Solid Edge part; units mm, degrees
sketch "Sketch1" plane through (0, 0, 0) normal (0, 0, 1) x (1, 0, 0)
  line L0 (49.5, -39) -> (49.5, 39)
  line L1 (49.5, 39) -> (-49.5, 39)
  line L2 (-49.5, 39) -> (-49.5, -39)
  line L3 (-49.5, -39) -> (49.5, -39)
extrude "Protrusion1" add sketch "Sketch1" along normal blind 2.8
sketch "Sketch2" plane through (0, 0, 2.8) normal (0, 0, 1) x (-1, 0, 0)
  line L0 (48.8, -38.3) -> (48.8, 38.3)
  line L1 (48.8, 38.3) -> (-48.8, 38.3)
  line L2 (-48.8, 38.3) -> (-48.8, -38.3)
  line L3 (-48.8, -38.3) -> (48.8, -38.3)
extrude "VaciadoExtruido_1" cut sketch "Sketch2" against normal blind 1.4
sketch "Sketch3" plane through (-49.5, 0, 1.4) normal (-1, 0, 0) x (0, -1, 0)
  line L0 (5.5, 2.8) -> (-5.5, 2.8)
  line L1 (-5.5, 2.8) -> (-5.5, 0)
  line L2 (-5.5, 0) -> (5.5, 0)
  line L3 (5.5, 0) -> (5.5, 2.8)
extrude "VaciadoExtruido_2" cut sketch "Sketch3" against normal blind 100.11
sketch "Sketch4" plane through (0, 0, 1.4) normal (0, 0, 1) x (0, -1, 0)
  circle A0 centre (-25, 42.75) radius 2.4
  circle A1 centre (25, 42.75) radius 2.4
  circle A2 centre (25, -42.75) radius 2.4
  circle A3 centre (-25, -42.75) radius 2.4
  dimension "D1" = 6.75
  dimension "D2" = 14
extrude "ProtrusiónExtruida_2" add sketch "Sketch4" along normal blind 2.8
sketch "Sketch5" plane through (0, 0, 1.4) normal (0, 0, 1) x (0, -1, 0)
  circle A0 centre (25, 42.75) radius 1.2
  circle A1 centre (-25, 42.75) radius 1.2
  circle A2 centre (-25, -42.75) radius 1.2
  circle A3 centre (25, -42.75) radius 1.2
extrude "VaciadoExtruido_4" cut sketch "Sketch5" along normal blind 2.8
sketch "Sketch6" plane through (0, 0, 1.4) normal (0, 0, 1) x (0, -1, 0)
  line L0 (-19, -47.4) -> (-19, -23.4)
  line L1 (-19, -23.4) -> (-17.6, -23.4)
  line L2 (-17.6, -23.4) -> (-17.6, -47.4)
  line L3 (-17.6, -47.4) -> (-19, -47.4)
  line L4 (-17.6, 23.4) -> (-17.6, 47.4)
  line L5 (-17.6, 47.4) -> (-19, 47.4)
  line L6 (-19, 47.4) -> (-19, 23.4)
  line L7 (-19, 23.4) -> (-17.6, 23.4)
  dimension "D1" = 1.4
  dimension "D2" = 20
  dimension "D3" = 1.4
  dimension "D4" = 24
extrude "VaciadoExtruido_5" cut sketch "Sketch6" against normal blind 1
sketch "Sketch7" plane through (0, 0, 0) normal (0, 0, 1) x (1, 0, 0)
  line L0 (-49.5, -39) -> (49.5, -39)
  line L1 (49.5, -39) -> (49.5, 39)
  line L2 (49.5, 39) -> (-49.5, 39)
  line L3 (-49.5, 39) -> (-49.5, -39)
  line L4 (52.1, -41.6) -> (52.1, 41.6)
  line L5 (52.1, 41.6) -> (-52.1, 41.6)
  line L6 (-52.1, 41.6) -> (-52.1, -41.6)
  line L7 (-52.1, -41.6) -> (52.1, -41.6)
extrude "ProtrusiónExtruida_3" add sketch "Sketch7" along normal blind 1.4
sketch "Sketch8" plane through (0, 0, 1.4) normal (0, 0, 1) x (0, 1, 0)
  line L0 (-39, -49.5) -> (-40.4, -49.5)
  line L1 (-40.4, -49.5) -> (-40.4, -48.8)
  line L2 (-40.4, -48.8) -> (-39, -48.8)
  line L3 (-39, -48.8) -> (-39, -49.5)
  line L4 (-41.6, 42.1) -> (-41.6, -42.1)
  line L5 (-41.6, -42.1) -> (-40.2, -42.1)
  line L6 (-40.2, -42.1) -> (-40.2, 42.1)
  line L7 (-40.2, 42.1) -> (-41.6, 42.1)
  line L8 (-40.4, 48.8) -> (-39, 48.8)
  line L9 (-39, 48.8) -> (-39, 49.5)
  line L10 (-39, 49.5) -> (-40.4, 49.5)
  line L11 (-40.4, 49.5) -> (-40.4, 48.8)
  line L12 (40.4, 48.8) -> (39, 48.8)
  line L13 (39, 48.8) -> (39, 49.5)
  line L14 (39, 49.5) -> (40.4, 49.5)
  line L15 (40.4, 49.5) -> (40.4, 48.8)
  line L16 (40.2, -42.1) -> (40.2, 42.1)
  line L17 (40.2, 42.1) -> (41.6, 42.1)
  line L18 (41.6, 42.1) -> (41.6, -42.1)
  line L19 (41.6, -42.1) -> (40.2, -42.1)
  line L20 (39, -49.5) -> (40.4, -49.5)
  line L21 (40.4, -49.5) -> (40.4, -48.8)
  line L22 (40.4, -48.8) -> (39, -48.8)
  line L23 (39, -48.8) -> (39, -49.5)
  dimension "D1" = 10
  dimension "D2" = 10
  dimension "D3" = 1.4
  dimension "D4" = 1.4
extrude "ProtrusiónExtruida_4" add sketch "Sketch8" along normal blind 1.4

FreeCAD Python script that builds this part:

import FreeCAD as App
import Part
import Sketcher
from FreeCAD import Vector


def add_polygon(sketch, points):
    """Adds a closed chain of lines whose ends are joined by coincident constraints."""
    first, n = sketch.GeometryCount, len(points)
    for a, b in zip(points, points[1:] + points[:1]):
        sketch.addGeometry(Part.LineSegment(App.Vector(*a, 0), App.Vector(*b, 0)), False)
    for i in range(n):
        sketch.addConstraint(Sketcher.Constraint("Coincident", first + i, 2, first + (i + 1) % n, 1))

doc = App.newDocument("Part")
body = doc.addObject("PartDesign::Body", "Body")

# Sketch on XY plane
sketch1 = body.newObject("Sketcher::SketchObject", "Sketch")
sketch1.AttachmentSupport = (doc.getObject("XY_Plane"), [""])
sketch1.MapMode = "FlatFace"
add_polygon(sketch1, [(-49.5, -39), (49.5, -39), (49.5, 39), (-49.5, 39)])  # lines 0-3
sketch1.addConstraint(Sketcher.Constraint("Horizontal", 0))
sketch1.addConstraint(Sketcher.Constraint("Vertical", 1))
sketch1.addConstraint(Sketcher.Constraint("Horizontal", 2))
sketch1.addConstraint(Sketcher.Constraint("Vertical", 3))
sketch1.addConstraint(Sketcher.Constraint("Symmetric", 0, 2, 2, 2, -1, 1))
sketch1.addConstraint(Sketcher.Constraint("DistanceX", 0, 1, 0, 2, 99.0))
sketch1.addConstraint(Sketcher.Constraint("DistanceY", 1, 1, 1, 2, 78.0))
pad1 = body.newObject("PartDesign::Pad", "Pad")
pad1.Profile = sketch1
pad1.Length = 2.8

# Sketch on XY plane
sketch2 = body.newObject("Sketcher::SketchObject", "Sketch001")
sketch2.AttachmentSupport = (doc.getObject("XY_Plane"), [""])
sketch2.MapMode = "FlatFace"
sketch2.AttachmentOffset = App.Placement(Vector(0, 0, 2.8), App.Rotation())
add_polygon(sketch2, [(48.8, 38.3), (-48.8, 38.3), (-48.8, -38.3), (48.8, -38.3)])  # lines 0-3
sketch2.addConstraint(Sketcher.Constraint("Horizontal", 0))
sketch2.addConstraint(Sketcher.Constraint("Vertical", 1))
sketch2.addConstraint(Sketcher.Constraint("Horizontal", 2))
sketch2.addConstraint(Sketcher.Constraint("Vertical", 3))
sketch2.addConstraint(Sketcher.Constraint("Symmetric", 0, 2, 2, 2, -1, 1))
sketch2.addConstraint(Sketcher.Constraint("DistanceX", 0, 2, 0, 1, 97.6))
sketch2.addConstraint(Sketcher.Constraint("DistanceY", 1, 2, 1, 1, 76.6))
pocket1 = body.newObject("PartDesign::Pocket", "Pocket")
pocket1.Profile = sketch2
pocket1.Length = 1.4

# Sketch on YZ plane
sketch3 = body.newObject("Sketcher::SketchObject", "Sketch002")
sketch3.AttachmentSupport = (doc.getObject("YZ_Plane"), [""])
sketch3.MapMode = "FlatFace"
sketch3.AttachmentOffset = App.Placement(Vector(0, 0, -49.5), App.Rotation())
add_polygon(sketch3, [(-5.5, 1.4), (-5.5, 4.2), (5.5, 4.2), (5.5, 1.4)])  # lines 0-3
sketch3.addConstraint(Sketcher.Constraint("Vertical", 0))
sketch3.addConstraint(Sketcher.Constraint("Horizontal", 1))
sketch3.addConstraint(Sketcher.Constraint("Vertical", 2))
sketch3.addConstraint(Sketcher.Constraint("Horizontal", 3))
sketch3.addConstraint(Sketcher.Constraint("DistanceX", 1, 1, 1, 2, 11.0))
sketch3.addConstraint(Sketcher.Constraint("DistanceY", 0, 1, 0, 2, 2.8))
sketch3.addConstraint(Sketcher.Constraint("DistanceX", 0, 2, -1, 1, 5.5))
sketch3.addConstraint(Sketcher.Constraint("DistanceY", -1, 1, 0, 2, 4.2))
pocket2 = body.newObject("PartDesign::Pocket", "Pocket001")
pocket2.Profile = sketch3
pocket2.Length = 100.11
pocket2.Reversed = True

# Sketch on XY plane
sketch4 = body.newObject("Sketcher::SketchObject", "Sketch003")
sketch4.AttachmentSupport = (doc.getObject("XY_Plane"), [""])
sketch4.MapMode = "FlatFace"
sketch4.AttachmentOffset = App.Placement(Vector(0, 0, 1.4), App.Rotation())
sketch4.addGeometry(Part.Circle(Vector(42.75, 25, 0), Vector(0, 0, 1), 2.4), False)
sketch4.addGeometry(Part.Circle(Vector(42.75, -25, 0), Vector(0, 0, 1), 2.4), False)
sketch4.addGeometry(Part.Circle(Vector(-42.75, -25, 0), Vector(0, 0, 1), 2.4), False)
sketch4.addGeometry(Part.Circle(Vector(-42.75, 25, 0), Vector(0, 0, 1), 2.4), False)
sketch4.addConstraint(Sketcher.Constraint("Equal", 0, 1))
sketch4.addConstraint(Sketcher.Constraint("Equal", 1, 2))
sketch4.addConstraint(Sketcher.Constraint("Equal", 2, 3))
sketch4.addConstraint(Sketcher.Constraint("Symmetric", 0, 3, 2, 3, -1, 1))
sketch4.addConstraint(Sketcher.Constraint("Symmetric", 1, 3, 3, 3, -1, 1))
sketch4.addConstraint(Sketcher.Constraint("Symmetric", 1, 3, 2, 3, -2))
sketch4.addConstraint(Sketcher.Constraint("Diameter", 0, 4.8))
sketch4.addConstraint(Sketcher.Constraint("DistanceY", -1, 1, 0, 3, 25.0))
sketch4.addConstraint(Sketcher.Constraint("DistanceX", 2, 3, 1, 3, 85.5))
pad2 = body.newObject("PartDesign::Pad", "Pad001")
pad2.Profile = sketch4
pad2.Length = 2.8

# Sketch on XY plane
sketch5 = body.newObject("Sketcher::SketchObject", "Sketch004")
sketch5.AttachmentSupport = (doc.getObject("XY_Plane"), [""])
sketch5.MapMode = "FlatFace"
sketch5.AttachmentOffset = App.Placement(Vector(0, 0, 1.4), App.Rotation())
sketch5.addGeometry(Part.Circle(Vector(42.75, -25, 0), Vector(0, 0, 1), 1.2), False)
sketch5.addGeometry(Part.Circle(Vector(42.75, 25, 0), Vector(0, 0, 1), 1.2), False)
sketch5.addGeometry(Part.Circle(Vector(-42.75, 25, 0), Vector(0, 0, 1), 1.2), False)
sketch5.addGeometry(Part.Circle(Vector(-42.75, -25, 0), Vector(0, 0, 1), 1.2), False)
sketch5.addConstraint(Sketcher.Constraint("Equal", 0, 1))
sketch5.addConstraint(Sketcher.Constraint("Equal", 1, 2))
sketch5.addConstraint(Sketcher.Constraint("Equal", 2, 3))
sketch5.addConstraint(Sketcher.Constraint("Symmetric", 0, 3, 2, 3, -1, 1))
sketch5.addConstraint(Sketcher.Constraint("Symmetric", 1, 3, 3, 3, -1, 1))
sketch5.addConstraint(Sketcher.Constraint("Symmetric", 1, 3, 2, 3, -2))
sketch5.addConstraint(Sketcher.Constraint("Diameter", 0, 2.4))
sketch5.addConstraint(Sketcher.Constraint("DistanceY", 0, 3, -1, 1, 25.0))
sketch5.addConstraint(Sketcher.Constraint("DistanceX", 2, 3, 1, 3, 85.5))
pocket3 = body.newObject("PartDesign::Pocket", "Pocket002")
pocket3.Profile = sketch5
pocket3.Length = 2.8
pocket3.Reversed = True

# Sketch on XY plane
sketch6 = body.newObject("Sketcher::SketchObject", "Sketch005")
sketch6.AttachmentSupport = (doc.getObject("XY_Plane"), [""])
sketch6.MapMode = "FlatFace"
sketch6.AttachmentOffset = App.Placement(Vector(0, 0, 1.4), App.Rotation())
add_polygon(sketch6, [(-23.4, 19), (-47.4, 19), (-47.4, 17.6), (-23.4, 17.6)])  # lines 0-3
add_polygon(sketch6, [(23.4, 19), (23.4, 17.6), (47.4, 17.6), (47.4, 19)])  # lines 4-7
sketch6.addConstraint(Sketcher.Constraint("Horizontal", 0))
sketch6.addConstraint(Sketcher.Constraint("Vertical", 1))
sketch6.addConstraint(Sketcher.Constraint("Horizontal", 2))
sketch6.addConstraint(Sketcher.Constraint("Vertical", 3))
sketch6.addConstraint(Sketcher.Constraint("Vertical", 4))
sketch6.addConstraint(Sketcher.Constraint("Horizontal", 5))
sketch6.addConstraint(Sketcher.Constraint("Vertical", 6))
sketch6.addConstraint(Sketcher.Constraint("Horizontal", 7))
sketch6.addConstraint(Sketcher.Constraint("Symmetric", 2, 2, 4, 2, -2))
sketch6.addConstraint(Sketcher.Constraint("Symmetric", 0, 2, 6, 2, -2))
sketch6.addConstraint(Sketcher.Constraint("DistanceX", 0, 2, 0, 1, 24.0))
sketch6.addConstraint(Sketcher.Constraint("DistanceY", 1, 2, 1, 1, 1.4))
sketch6.addConstraint(Sketcher.Constraint("DistanceY", -1, 1, 0, 2, 19.0))
sketch6.addConstraint(Sketcher.Constraint("DistanceX", 0, 2, -1, 1, 47.4))
pocket4 = body.newObject("PartDesign::Pocket", "Pocket003")
pocket4.Profile = sketch6
pocket4.Length = 1

# Sketch on XY plane
sketch7 = body.newObject("Sketcher::SketchObject", "Sketch006")
sketch7.AttachmentSupport = (doc.getObject("XY_Plane"), [""])
sketch7.MapMode = "FlatFace"
add_polygon(sketch7, [(-52.1, -41.6), (52.1, -41.6), (52.1, 41.6), (-52.1, 41.6)])  # lines 0-3
add_polygon(sketch7, [(49.5, -39), (-49.5, -39), (-49.5, 39), (49.5, 39)])  # lines 4-7
sketch7.addConstraint(Sketcher.Constraint("Horizontal", 0))
sketch7.addConstraint(Sketcher.Constraint("Vertical", 1))
sketch7.addConstraint(Sketcher.Constraint("Horizontal", 2))
sketch7.addConstraint(Sketcher.Constraint("Vertical", 3))
sketch7.addConstraint(Sketcher.Constraint("Horizontal", 4))
sketch7.addConstraint(Sketcher.Constraint("Vertical", 5))
sketch7.addConstraint(Sketcher.Constraint("Horizontal", 6))
sketch7.addConstraint(Sketcher.Constraint("Vertical", 7))
sketch7.addConstraint(Sketcher.Constraint("Symmetric", 0, 2, 2, 2, -1, 1))
sketch7.addConstraint(Sketcher.Constraint("Symmetric", 4, 2, 6, 2, -1, 1))
sketch7.addConstraint(Sketcher.Constraint("DistanceX", 4, 2, 4, 1, 99.0))
sketch7.addConstraint(Sketcher.Constraint("DistanceY", 5, 1, 5, 2, 78.0))
sketch7.addConstraint(Sketcher.Constraint("DistanceX", 0, 1, 0, 2, 104.2))
sketch7.addConstraint(Sketcher.Constraint("DistanceY", 1, 1, 1, 2, 83.2))
pad3 = body.newObject("PartDesign::Pad", "Pad002")
pad3.Profile = sketch7
pad3.Length = 1.4

# Sketch on XY plane
sketch8 = body.newObject("Sketcher::SketchObject", "Sketch007")
sketch8.AttachmentSupport = (doc.getObject("XY_Plane"), [""])
sketch8.MapMode = "FlatFace"
sketch8.AttachmentOffset = App.Placement(Vector(0, 0, 1.4), App.Rotation())
add_polygon(sketch8, [(49.5, -40.4), (49.5, -39), (48.8, -39), (48.8, -40.4)])  # lines 0-3
add_polygon(sketch8, [(-42.1, -40.2), (-42.1, -41.6), (42.1, -41.6), (42.1, -40.2)])  # lines 4-7
add_polygon(sketch8, [(-49.5, -40.4), (-48.8, -40.4), (-48.8, -39), (-49.5, -39)])  # lines 8-11
add_polygon(sketch8, [(-48.8, 39), (-48.8, 40.4), (-49.5, 40.4), (-49.5, 39)])  # lines 12-15
add_polygon(sketch8, [(-42.1, 40.2), (42.1, 40.2), (42.1, 41.6), (-42.1, 41.6)])  # lines 16-19
add_polygon(sketch8, [(48.8, 39), (49.5, 39), (49.5, 40.4), (48.8, 40.4)])  # lines 20-23
sketch8.addConstraint(Sketcher.Constraint("Vertical", 0))
sketch8.addConstraint(Sketcher.Constraint("Horizontal", 1))
sketch8.addConstraint(Sketcher.Constraint("Vertical", 2))
sketch8.addConstraint(Sketcher.Constraint("Horizontal", 3))
sketch8.addConstraint(Sketcher.Constraint("Vertical", 4))
sketch8.addConstraint(Sketcher.Constraint("Horizontal", 5))
sketch8.addConstraint(Sketcher.Constraint("Vertical", 6))
sketch8.addConstraint(Sketcher.Constraint("Horizontal", 7))
sketch8.addConstraint(Sketcher.Constraint("Horizontal", 8))
sketch8.addConstraint(Sketcher.Constraint("Vertical", 9))
sketch8.addConstraint(Sketcher.Constraint("Horizontal", 10))
sketch8.addConstraint(Sketcher.Constraint("Vertical", 11))
sketch8.addConstraint(Sketcher.Constraint("Vertical", 12))
sketch8.addConstraint(Sketcher.Constraint("Horizontal", 13))
sketch8.addConstraint(Sketcher.Constraint("Vertical", 14))
sketch8.addConstraint(Sketcher.Constraint("Horizontal", 15))
sketch8.addConstraint(Sketcher.Constraint("Horizontal", 16))
sketch8.addConstraint(Sketcher.Constraint("Vertical", 17))
sketch8.addConstraint(Sketcher.Constraint("Horizontal", 18))
sketch8.addConstraint(Sketcher.Constraint("Vertical", 19))
sketch8.addConstraint(Sketcher.Constraint("Horizontal", 20))
sketch8.addConstraint(Sketcher.Constraint("Vertical", 21))
sketch8.addConstraint(Sketcher.Constraint("Horizontal", 22))
sketch8.addConstraint(Sketcher.Constraint("Vertical", 23))
sketch8.addConstraint(Sketcher.Constraint("Symmetric", 2, 2, 12, 2, -1, 1))
sketch8.addConstraint(Sketcher.Constraint("Symmetric", 0, 2, 14, 2, -1, 1))
sketch8.addConstraint(Sketcher.Constraint("Symmetric", 7, 2, 16, 2, -1, 1))
sketch8.addConstraint(Sketcher.Constraint("Symmetric", 5, 2, 18, 2, -1, 1))
sketch8.addConstraint(Sketcher.Constraint("Symmetric", 10, 2, 20, 2, -1, 1))
sketch8.addConstraint(Sketcher.Constraint("Symmetric", 8, 2, 22, 2, -1, 1))
sketch8.addConstraint(Sketcher.Constraint("Symmetric", 2, 2, 8, 2, -2))
sketch8.addConstraint(Sketcher.Constraint("Symmetric", 0, 2, 10, 2, -2))
sketch8.addConstraint(Sketcher.Constraint("Vertical", 6, 2, 16, 2))
sketch8.addConstraint(Sketcher.Constraint("Equal", 2, 4))
sketch8.addConstraint(Sketcher.Constraint("DistanceX", 1, 2, 1, 1, 0.7))
sketch8.addConstraint(Sketcher.Constraint("DistanceX", 5, 1, 5, 2, 84.2))
sketch8.addConstraint(Sketcher.Constraint("DistanceY", 0, 1, 0, 2, 1.4))
sketch8.addConstraint(Sketcher.Constraint("DistanceY", 0, 2, -1, 1, 39.0))
sketch8.addConstraint(Sketcher.Constraint("DistanceY", 2, 2, 17, 2, 82.0))
sketch8.addConstraint(Sketcher.Constraint("DistanceX", -1, 1, 0, 2, 49.5))
pad4 = body.newObject("PartDesign::Pad", "Pad003")
pad4.Profile = sketch8
pad4.Length = 1.4

doc.recompute()
